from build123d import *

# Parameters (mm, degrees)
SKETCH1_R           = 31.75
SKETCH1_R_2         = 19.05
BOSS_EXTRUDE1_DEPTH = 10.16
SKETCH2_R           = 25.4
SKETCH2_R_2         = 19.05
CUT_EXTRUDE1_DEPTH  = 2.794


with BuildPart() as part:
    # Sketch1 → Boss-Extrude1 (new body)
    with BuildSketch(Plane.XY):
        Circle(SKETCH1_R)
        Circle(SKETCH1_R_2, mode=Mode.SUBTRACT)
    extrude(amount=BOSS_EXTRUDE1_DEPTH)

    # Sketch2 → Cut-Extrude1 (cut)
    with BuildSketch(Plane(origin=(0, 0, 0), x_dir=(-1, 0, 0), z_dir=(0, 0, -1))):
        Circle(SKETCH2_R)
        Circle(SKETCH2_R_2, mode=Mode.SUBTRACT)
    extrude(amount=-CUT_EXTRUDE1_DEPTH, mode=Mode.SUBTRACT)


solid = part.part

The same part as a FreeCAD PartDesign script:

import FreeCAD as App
import Part
import Sketcher
from FreeCAD import Vector
Q = App.Units.Quantity

doc = App.newDocument("Part")
body = doc.addObject("PartDesign::Body", "Body")

# Sketch on XY plane
sketch1 = body.newObject("Sketcher::SketchObject", "Sketch")
sketch1.AttachmentSupport = (doc.getObject("XY_Plane"), [""])
sketch1.MapMode = "FlatFace"
sketch1.addGeometry([
    Part.Circle(Vector(0, 0, 0), Vector(0, 0, 1), 32),
    Part.Circle(Vector(0, 0, 0), Vector(0, 0, 1), 19),
], False)
sketch1.addConstraint([
    Sketcher.Constraint("Coincident", 0, 3, -1, 1),
    Sketcher.Constraint("Coincident", 1, 3, -1, 1),
    Sketcher.Constraint("Diameter", 0, Q("2.5 in")),
    Sketcher.Constraint("Diameter", 1, Q("1.5 in")),
])
pad1 = body.newObject("PartDesign::Pad", "Pad")
pad1.Profile = sketch1
pad1.Length = Q("0.4 in")

# Sketch on XY plane
sketch2 = body.newObject("Sketcher::SketchObject", "Sketch001")
sketch2.AttachmentSupport = (doc.getObject("XY_Plane"), [""])
sketch2.MapMode = "FlatFace"
sketch2.addGeometry([
    Part.Circle(Vector(0, 0, 0), Vector(0, 0, 1), 25),
    Part.Circle(Vector(0, 0, 0), Vector(0, 0, 1), 19),
], False)
sketch2.addConstraint([
    Sketcher.Constraint("Coincident", 0, 3, -1, 1),
    Sketcher.Constraint("Coincident", 1, 3, -1, 1),
    Sketcher.Constraint("Diameter", 0, Q("2 in")),
    Sketcher.Constraint("Diameter", 1, Q("1.5 in")),
])
pocket1 = body.newObject("PartDesign::Pocket", "Pocket")
pocket1.Profile = sketch2
pocket1.Length = Q("0.11 in")
pocket1.Reversed = True

doc.recompute()
